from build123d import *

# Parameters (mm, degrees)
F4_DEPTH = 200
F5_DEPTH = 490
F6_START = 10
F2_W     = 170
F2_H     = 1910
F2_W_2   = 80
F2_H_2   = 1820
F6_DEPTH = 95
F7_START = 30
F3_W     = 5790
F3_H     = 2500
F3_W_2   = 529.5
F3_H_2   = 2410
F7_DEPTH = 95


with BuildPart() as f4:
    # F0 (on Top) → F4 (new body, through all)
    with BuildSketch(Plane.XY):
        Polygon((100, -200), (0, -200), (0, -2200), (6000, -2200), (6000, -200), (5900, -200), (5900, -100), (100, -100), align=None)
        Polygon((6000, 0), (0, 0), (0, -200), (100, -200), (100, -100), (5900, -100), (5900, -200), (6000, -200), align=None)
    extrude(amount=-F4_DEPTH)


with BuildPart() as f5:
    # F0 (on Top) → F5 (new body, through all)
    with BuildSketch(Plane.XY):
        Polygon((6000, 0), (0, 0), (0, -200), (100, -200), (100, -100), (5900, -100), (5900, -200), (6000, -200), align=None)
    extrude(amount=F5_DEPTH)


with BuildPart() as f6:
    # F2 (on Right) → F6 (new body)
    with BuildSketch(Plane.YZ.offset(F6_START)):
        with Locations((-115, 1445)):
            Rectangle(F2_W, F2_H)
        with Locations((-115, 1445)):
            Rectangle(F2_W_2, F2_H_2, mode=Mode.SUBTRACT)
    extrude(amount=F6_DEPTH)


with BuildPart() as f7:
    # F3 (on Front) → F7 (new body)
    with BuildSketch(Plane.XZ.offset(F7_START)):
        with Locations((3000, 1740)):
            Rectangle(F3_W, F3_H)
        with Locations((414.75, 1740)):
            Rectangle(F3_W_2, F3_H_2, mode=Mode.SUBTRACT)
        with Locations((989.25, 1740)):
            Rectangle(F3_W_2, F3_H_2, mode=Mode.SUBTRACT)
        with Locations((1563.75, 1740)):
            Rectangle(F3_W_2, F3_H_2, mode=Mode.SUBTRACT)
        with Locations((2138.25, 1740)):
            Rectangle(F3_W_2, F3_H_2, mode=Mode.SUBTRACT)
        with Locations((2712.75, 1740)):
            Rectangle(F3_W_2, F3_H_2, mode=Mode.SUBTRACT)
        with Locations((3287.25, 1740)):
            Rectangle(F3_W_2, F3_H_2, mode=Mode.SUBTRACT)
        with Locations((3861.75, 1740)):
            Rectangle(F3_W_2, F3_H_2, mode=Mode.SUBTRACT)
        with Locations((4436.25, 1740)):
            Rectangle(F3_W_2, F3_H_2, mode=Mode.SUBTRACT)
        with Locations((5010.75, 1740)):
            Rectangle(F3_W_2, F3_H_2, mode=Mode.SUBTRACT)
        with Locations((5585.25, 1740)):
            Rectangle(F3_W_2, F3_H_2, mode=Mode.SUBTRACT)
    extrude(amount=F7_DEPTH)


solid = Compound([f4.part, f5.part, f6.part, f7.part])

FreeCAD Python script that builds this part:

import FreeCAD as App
import Part
import Sketcher

doc = App.newDocument("Part")
body = doc.addObject("PartDesign::Body", "Body")

# Sketch on XY plane
sketch1 = body.newObject("Sketcher::SketchObject", "Sketch")
sketch1.AttachmentSupport = (doc.getObject("XY_Plane"), [""])
sketch1.MapMode = "FlatFace"
sketch1.addGeometry(Part.LineSegment(App.Vector(0, -2200, 0), App.Vector(6000, -2200, 0)), False)
sketch1.addGeometry(Part.LineSegment(App.Vector(6000, -2200, 0), App.Vector(6000, 0, 0)), False)
sketch1.addGeometry(Part.LineSegment(App.Vector(6000, 0, 0), App.Vector(0, 0, 0)), False)
sketch1.addGeometry(Part.LineSegment(App.Vector(0, 0, 0), App.Vector(0, -2200, 0)), False)
sketch1.addConstraint(Sketcher.Constraint("Coincident", 0, 2, 1, 1))
sketch1.addConstraint(Sketcher.Constraint("Coincident", 1, 2, 2, 1))
sketch1.addConstraint(Sketcher.Constraint("Coincident", 2, 2, 3, 1))
sketch1.addConstraint(Sketcher.Constraint("Coincident", 3, 2, 0, 1))
sketch1.addConstraint(Sketcher.Constraint("Horizontal", 0))
sketch1.addConstraint(Sketcher.Constraint("Vertical", 1))
sketch1.addConstraint(Sketcher.Constraint("Horizontal", 2))
sketch1.addConstraint(Sketcher.Constraint("Vertical", 3))
sketch1.addConstraint(Sketcher.Constraint("Coincident", 2, 2, -1, 1))
sketch1.addConstraint(Sketcher.Constraint("DistanceX", 0, 1, 0, 2, 6000.0))
sketch1.addConstraint(Sketcher.Constraint("DistanceY", 1, 1, 1, 2, 2200.0))
pad1 = body.newObject("PartDesign::Pad", "Pad")
pad1.Profile = sketch1
pad1.Length = 200
pad1.Reversed = True
body2 = doc.addObject("PartDesign::Body", "Body001")

# Sketch on XY plane
sketch2 = body2.newObject("Sketcher::SketchObject", "Sketch001")
sketch2.AttachmentSupport = (doc.getObject("XY_Plane001"), [""])
sketch2.MapMode = "FlatFace"
sketch2.addGeometry(Part.LineSegment(App.Vector(6000, 0, 0), App.Vector(0, 0, 0)), False)
sketch2.addGeometry(Part.LineSegment(App.Vector(0, 0, 0), App.Vector(0, -200, 0)), False)
sketch2.addGeometry(Part.LineSegment(App.Vector(0, -200, 0), App.Vector(100, -200, 0)), False)
sketch2.addGeometry(Part.LineSegment(App.Vector(100, -200, 0), App.Vector(100, -100, 0)), False)
sketch2.addGeometry(Part.LineSegment(App.Vector(100, -100, 0), App.Vector(5900, -100, 0)), False)
sketch2.addGeometry(Part.LineSegment(App.Vector(5900, -100, 0), App.Vector(5900, -200, 0)), False)
sketch2.addGeometry(Part.LineSegment(App.Vector(5900, -200, 0), App.Vector(6000, -200, 0)), False)
sketch2.addGeometry(Part.LineSegment(App.Vector(6000, -200, 0), App.Vector(6000, 0, 0)), False)
sketch2.addConstraint(Sketcher.Constraint("Coincident", 0, 2, 1, 1))
sketch2.addConstraint(Sketcher.Constraint("Coincident", 1, 2, 2, 1))
sketch2.addConstraint(Sketcher.Constraint("Coincident", 2, 2, 3, 1))
sketch2.addConstraint(Sketcher.Constraint("Coincident", 3, 2, 4, 1))
sketch2.addConstraint(Sketcher.Constraint("Coincident", 4, 2, 5, 1))
sketch2.addConstraint(Sketcher.Constraint("Coincident", 5, 2, 6, 1))
sketch2.addConstraint(Sketcher.Constraint("Coincident", 6, 2, 7, 1))
sketch2.addConstraint(Sketcher.Constraint("Coincident", 7, 2, 0, 1))
sketch2.addConstraint(Sketcher.Constraint("Horizontal", 0))
sketch2.addConstraint(Sketcher.Constraint("Vertical", 1))
sketch2.addConstraint(Sketcher.Constraint("Horizontal", 2))
sketch2.addConstraint(Sketcher.Constraint("Vertical", 3))
sketch2.addConstraint(Sketcher.Constraint("Horizontal", 4))
sketch2.addConstraint(Sketcher.Constraint("Vertical", 5))
sketch2.addConstraint(Sketcher.Constraint("Horizontal", 6))
sketch2.addConstraint(Sketcher.Constraint("Vertical", 7))
sketch2.addConstraint(Sketcher.Constraint("Coincident", 0, 2, -1, 1))
sketch2.addConstraint(Sketcher.Constraint("Horizontal", 2, 2, 5, 2))
sketch2.addConstraint(Sketcher.Constraint("Equal", 2, 6))
sketch2.addConstraint(Sketcher.Constraint("Equal", 6, 3))
sketch2.addConstraint(Sketcher.Constraint("DistanceX", 0, 2, 0, 1, 6000.0))
sketch2.addConstraint(Sketcher.Constraint("DistanceX", 2, 1, 2, 2, 100.0))
sketch2.addConstraint(Sketcher.Constraint("DistanceY", 1, 2, 1, 1, 200.0))
pad2 = body2.newObject("PartDesign::Pad", "Pad001")
pad2.Profile = sketch2
pad2.Length = 490
body3 = doc.addObject("PartDesign::Body", "Body002")

# Sketch on YZ plane
sketch3 = body3.newObject("Sketcher::SketchObject", "Sketch002")
sketch3.AttachmentSupport = (doc.getObject("YZ_Plane002"), [""])
sketch3.MapMode = "FlatFace"
sketch3.AttachmentOffset = App.Placement(App.Vector(0, 0, 10), App.Rotation())
sketch3.addGeometry(Part.LineSegment(App.Vector(-200, 2400, 0), App.Vector(-200, 490, 0)), False)
sketch3.addGeometry(Part.LineSegment(App.Vector(-200, 490, 0), App.Vector(-30, 490, 0)), False)
sketch3.addGeometry(Part.LineSegment(App.Vector(-30, 490, 0), App.Vector(-30, 2400, 0)), False)
sketch3.addGeometry(Part.LineSegment(App.Vector(-30, 2400, 0), App.Vector(-200, 2400, 0)), False)
sketch3.addGeometry(Part.LineSegment(App.Vector(-75, 535, 0), App.Vector(-155, 535, 0)), False)
sketch3.addGeometry(Part.LineSegment(App.Vector(-155, 535, 0), App.Vector(-155, 2355, 0)), False)
sketch3.addGeometry(Part.LineSegment(App.Vector(-155, 2355, 0), App.Vector(-75, 2355, 0)), False)
sketch3.addGeometry(Part.LineSegment(App.Vector(-75, 2355, 0), App.Vector(-75, 535, 0)), False)
sketch3.addConstraint(Sketcher.Constraint("Coincident", 0, 2, 1, 1))
sketch3.addConstraint(Sketcher.Constraint("Coincident", 1, 2, 2, 1))
sketch3.addConstraint(Sketcher.Constraint("Coincident", 2, 2, 3, 1))
sketch3.addConstraint(Sketcher.Constraint("Coincident", 3, 2, 0, 1))
sketch3.addConstraint(Sketcher.Constraint("Coincident", 4, 2, 5, 1))
sketch3.addConstraint(Sketcher.Constraint("Coincident", 5, 2, 6, 1))
sketch3.addConstraint(Sketcher.Constraint("Coincident", 6, 2, 7, 1))
sketch3.addConstraint(Sketcher.Constraint("Coincident", 7, 2, 4, 1))
sketch3.addConstraint(Sketcher.Constraint("Vertical", 0))
sketch3.addConstraint(Sketcher.Constraint("Horizontal", 1))
sketch3.addConstraint(Sketcher.Constraint("Vertical", 2))
sketch3.addConstraint(Sketcher.Constraint("Horizontal", 3))
sketch3.addConstraint(Sketcher.Constraint("Horizontal", 4))
sketch3.addConstraint(Sketcher.Constraint("Vertical", 5))
sketch3.addConstraint(Sketcher.Constraint("Horizontal", 6))
sketch3.addConstraint(Sketcher.Constraint("Vertical", 7))
sketch3.addConstraint(Sketcher.Constraint("DistanceX", 1, 1, 1, 2, 170.0))
sketch3.addConstraint(Sketcher.Constraint("DistanceX", 4, 2, 4, 1, 80.0))
sketch3.addConstraint(Sketcher.Constraint("DistanceY", 0, 2, 0, 1, 1910.0))
sketch3.addConstraint(Sketcher.Constraint("DistanceY", 5, 1, 5, 2, 1820.0))
sketch3.addConstraint(Sketcher.Constraint("DistanceX", 0, 2, -1, 1, 200.0))
sketch3.addConstraint(Sketcher.Constraint("DistanceY", -1, 1, 0, 2, 490.0))
sketch3.addConstraint(Sketcher.Constraint("DistanceX", 4, 2, -1, 1, 155.0))
sketch3.addConstraint(Sketcher.Constraint("DistanceY", -1, 1, 4, 2, 535.0))
pad3 = body3.newObject("PartDesign::Pad", "Pad002")
pad3.Profile = sketch3
pad3.Length = 95
body4 = doc.addObject("PartDesign::Body", "Body003")

# Sketch on XZ plane
sketch4 = body4.newObject("Sketcher::SketchObject", "Sketch003")
sketch4.AttachmentSupport = (doc.getObject("XZ_Plane003"), [""])
sketch4.MapMode = "FlatFace"
sketch4.AttachmentOffset = App.Placement(App.Vector(0, 0, 30), App.Rotation())
sketch4.addGeometry(Part.LineSegment(App.Vector(105, 2990, 0), App.Vector(105, 490, 0)), False)
sketch4.addGeometry(Part.LineSegment(App.Vector(105, 490, 0), App.Vector(5895, 490, 0)), False)
sketch4.addGeometry(Part.LineSegment(App.Vector(5895, 490, 0), App.Vector(5895, 2990, 0)), False)
sketch4.addGeometry(Part.LineSegment(App.Vector(5895, 2990, 0), App.Vector(105, 2990, 0)), False)
sketch4.addGeometry(Part.LineSegment(App.Vector(679.5, 535, 0), App.Vector(150, 535, 0)), False)
sketch4.addGeometry(Part.LineSegment(App.Vector(150, 535, 0), App.Vector(150, 2945, 0)), False)
sketch4.addGeometry(Part.LineSegment(App.Vector(150, 2945, 0), App.Vector(679.5, 2945, 0)), False)
sketch4.addGeometry(Part.LineSegment(App.Vector(679.5, 2945, 0), App.Vector(679.5, 535, 0)), False)
sketch4.addGeometry(Part.LineSegment(App.Vector(1254, 535, 0), App.Vector(724.5, 535, 0)), False)
sketch4.addGeometry(Part.LineSegment(App.Vector(724.5, 535, 0), App.Vector(724.5, 2945, 0)), False)
sketch4.addGeometry(Part.LineSegment(App.Vector(724.5, 2945, 0), App.Vector(1254, 2945, 0)), False)
sketch4.addGeometry(Part.LineSegment(App.Vector(1254, 2945, 0), App.Vector(1254, 535, 0)), False)
sketch4.addGeometry(Part.LineSegment(App.Vector(1828.5, 535, 0), App.Vector(1299, 535, 0)), False)
sketch4.addGeometry(Part.LineSegment(App.Vector(1299, 535, 0), App.Vector(1299, 2945, 0)), False)
sketch4.addGeometry(Part.LineSegment(App.Vector(1299, 2945, 0), App.Vector(1828.5, 2945, 0)), False)
sketch4.addGeometry(Part.LineSegment(App.Vector(1828.5, 2945, 0), App.Vector(1828.5, 535, 0)), False)
sketch4.addGeometry(Part.LineSegment(App.Vector(2403, 535, 0), App.Vector(1873.5, 535, 0)), False)
sketch4.addGeometry(Part.LineSegment(App.Vector(1873.5, 535, 0), App.Vector(1873.5, 2945, 0)), False)
sketch4.addGeometry(Part.LineSegment(App.Vector(1873.5, 2945, 0), App.Vector(2403, 2945, 0)), False)
sketch4.addGeometry(Part.LineSegment(App.Vector(2403, 2945, 0), App.Vector(2403, 535, 0)), False)
sketch4.addGeometry(Part.LineSegment(App.Vector(2977.5, 535, 0), App.Vector(2448, 535, 0)), False)
sketch4.addGeometry(Part.LineSegment(App.Vector(2448, 535, 0), App.Vector(2448, 2945, 0)), False)
sketch4.addGeometry(Part.LineSegment(App.Vector(2448, 2945, 0), App.Vector(2977.5, 2945, 0)), False)
sketch4.addGeometry(Part.LineSegment(App.Vector(2977.5, 2945, 0), App.Vector(2977.5, 535, 0)), False)
sketch4.addGeometry(Part.LineSegment(App.Vector(3552, 535, 0), App.Vector(3022.5, 535, 0)), False)
sketch4.addGeometry(Part.LineSegment(App.Vector(3022.5, 535, 0), App.Vector(3022.5, 2945, 0)), False)
sketch4.addGeometry(Part.LineSegment(App.Vector(3022.5, 2945, 0), App.Vector(3552, 2945, 0)), False)
sketch4.addGeometry(Part.LineSegment(App.Vector(3552, 2945, 0), App.Vector(3552, 535, 0)), False)
sketch4.addGeometry(Part.LineSegment(App.Vector(4126.5, 535, 0), App.Vector(3597, 535, 0)), False)
sketch4.addGeometry(Part.LineSegment(App.Vector(3597, 535, 0), App.Vector(3597, 2945, 0)), False)
sketch4.addGeometry(Part.LineSegment(App.Vector(3597, 2945, 0), App.Vector(4126.5, 2945, 0)), False)
sketch4.addGeometry(Part.LineSegment(App.Vector(4126.5, 2945, 0), App.Vector(4126.5, 535, 0)), False)
sketch4.addGeometry(Part.LineSegment(App.Vector(4701, 535, 0), App.Vector(4171.5, 535, 0)), False)
sketch4.addGeometry(Part.LineSegment(App.Vector(4171.5, 535, 0), App.Vector(4171.5, 2945, 0)), False)
sketch4.addGeometry(Part.LineSegment(App.Vector(4171.5, 2945, 0), App.Vector(4701, 2945, 0)), False)
sketch4.addGeometry(Part.LineSegment(App.Vector(4701, 2945, 0), App.Vector(4701, 535, 0)), False)
sketch4.addGeometry(Part.LineSegment(App.Vector(5275.5, 535, 0), App.Vector(4746, 535, 0)), False)
sketch4.addGeometry(Part.LineSegment(App.Vector(4746, 535, 0), App.Vector(4746, 2945, 0)), False)
sketch4.addGeometry(Part.LineSegment(App.Vector(4746, 2945, 0), App.Vector(5275.5, 2945, 0)), False)
sketch4.addGeometry(Part.LineSegment(App.Vector(5275.5, 2945, 0), App.Vector(5275.5, 535, 0)), False)
sketch4.addGeometry(Part.LineSegment(App.Vector(5850, 535, 0), App.Vector(5320.5, 535, 0)), False)
sketch4.addGeometry(Part.LineSegment(App.Vector(5320.5, 535, 0), App.Vector(5320.5, 2945, 0)), False)
sketch4.addGeometry(Part.LineSegment(App.Vector(5320.5, 2945, 0), App.Vector(5850, 2945, 0)), False)
sketch4.addGeometry(Part.LineSegment(App.Vector(5850, 2945, 0), App.Vector(5850, 535, 0)), False)
sketch4.addConstraint(Sketcher.Constraint("Coincident", 0, 2, 1, 1))
sketch4.addConstraint(Sketcher.Constraint("Coincident", 1, 2, 2, 1))
sketch4.addConstraint(Sketcher.Constraint("Coincident", 2, 2, 3, 1))
sketch4.addConstraint(Sketcher.Constraint("Coincident", 3, 2, 0, 1))
sketch4.addConstraint(Sketcher.Constraint("Coincident", 4, 2, 5, 1))
sketch4.addConstraint(Sketcher.Constraint("Coincident", 5, 2, 6, 1))
sketch4.addConstraint(Sketcher.Constraint("Coincident", 6, 2, 7, 1))
sketch4.addConstraint(Sketcher.Constraint("Coincident", 7, 2, 4, 1))
sketch4.addConstraint(Sketcher.Constraint("Coincident", 8, 2, 9, 1))
sketch4.addConstraint(Sketcher.Constraint("Coincident", 9, 2, 10, 1))
sketch4.addConstraint(Sketcher.Constraint("Coincident", 10, 2, 11, 1))
sketch4.addConstraint(Sketcher.Constraint("Coincident", 11, 2, 8, 1))
sketch4.addConstraint(Sketcher.Constraint("Coincident", 12, 2, 13, 1))
sketch4.addConstraint(Sketcher.Constraint("Coincident", 13, 2, 14, 1))
sketch4.addConstraint(Sketcher.Constraint("Coincident", 14, 2, 15, 1))
sketch4.addConstraint(Sketcher.Constraint("Coincident", 15, 2, 12, 1))
sketch4.addConstraint(Sketcher.Constraint("Coincident", 16, 2, 17, 1))
sketch4.addConstraint(Sketcher.Constraint("Coincident", 17, 2, 18, 1))
sketch4.addConstraint(Sketcher.Constraint("Coincident", 18, 2, 19, 1))
sketch4.addConstraint(Sketcher.Constraint("Coincident", 19, 2, 16, 1))
sketch4.addConstraint(Sketcher.Constraint("Coincident", 20, 2, 21, 1))
sketch4.addConstraint(Sketcher.Constraint("Coincident", 21, 2, 22, 1))
sketch4.addConstraint(Sketcher.Constraint("Coincident", 22, 2, 23, 1))
sketch4.addConstraint(Sketcher.Constraint("Coincident", 23, 2, 20, 1))
sketch4.addConstraint(Sketcher.Constraint("Coincident", 24, 2, 25, 1))
sketch4.addConstraint(Sketcher.Constraint("Coincident", 25, 2, 26, 1))
sketch4.addConstraint(Sketcher.Constraint("Coincident", 26, 2, 27, 1))
sketch4.addConstraint(Sketcher.Constraint("Coincident", 27, 2, 24, 1))
sketch4.addConstraint(Sketcher.Constraint("Coincident", 28, 2, 29, 1))
sketch4.addConstraint(Sketcher.Constraint("Coincident", 29, 2, 30, 1))
sketch4.addConstraint(Sketcher.Constraint("Coincident", 30, 2, 31, 1))
sketch4.addConstraint(Sketcher.Constraint("Coincident", 31, 2, 28, 1))
sketch4.addConstraint(Sketcher.Constraint("Coincident", 32, 2, 33, 1))
sketch4.addConstraint(Sketcher.Constraint("Coincident", 33, 2, 34, 1))
sketch4.addConstraint(Sketcher.Constraint("Coincident", 34, 2, 35, 1))
sketch4.addConstraint(Sketcher.Constraint("Coincident", 35, 2, 32, 1))
sketch4.addConstraint(Sketcher.Constraint("Coincident", 36, 2, 37, 1))
sketch4.addConstraint(Sketcher.Constraint("Coincident", 37, 2, 38, 1))
sketch4.addConstraint(Sketcher.Constraint("Coincident", 38, 2, 39, 1))
sketch4.addConstraint(Sketcher.Constraint("Coincident", 39, 2, 36, 1))
sketch4.addConstraint(Sketcher.Constraint("Coincident", 40, 2, 41, 1))
sketch4.addConstraint(Sketcher.Constraint("Coincident", 41, 2, 42, 1))
sketch4.addConstraint(Sketcher.Constraint("Coincident", 42, 2, 43, 1))
sketch4.addConstraint(Sketcher.Constraint("Coincident", 43, 2, 40, 1))
sketch4.addConstraint(Sketcher.Constraint("Vertical", 0))
sketch4.addConstraint(Sketcher.Constraint("Horizontal", 1))
sketch4.addConstraint(Sketcher.Constraint("Vertical", 2))
sketch4.addConstraint(Sketcher.Constraint("Horizontal", 3))
sketch4.addConstraint(Sketcher.Constraint("Horizontal", 4))
sketch4.addConstraint(Sketcher.Constraint("Vertical", 5))
sketch4.addConstraint(Sketcher.Constraint("Horizontal", 6))
sketch4.addConstraint(Sketcher.Constraint("Vertical", 7))
sketch4.addConstraint(Sketcher.Constraint("Horizontal", 8))
sketch4.addConstraint(Sketcher.Constraint("Vertical", 9))
sketch4.addConstraint(Sketcher.Constraint("Horizontal", 10))
sketch4.addConstraint(Sketcher.Constraint("Vertical", 11))
sketch4.addConstraint(Sketcher.Constraint("Horizontal", 12))
sketch4.addConstraint(Sketcher.Constraint("Vertical", 13))
sketch4.addConstraint(Sketcher.Constraint("Horizontal", 14))
sketch4.addConstraint(Sketcher.Constraint("Vertical", 15))
sketch4.addConstraint(Sketcher.Constraint("Horizontal", 16))
sketch4.addConstraint(Sketcher.Constraint("Vertical", 17))
sketch4.addConstraint(Sketcher.Constraint("Horizontal", 18))
sketch4.addConstraint(Sketcher.Constraint("Vertical", 19))
sketch4.addConstraint(Sketcher.Constraint("Horizontal", 20))
sketch4.addConstraint(Sketcher.Constraint("Vertical", 21))
sketch4.addConstraint(Sketcher.Constraint("Horizontal", 22))
sketch4.addConstraint(Sketcher.Constraint("Vertical", 23))
sketch4.addConstraint(Sketcher.Constraint("Horizontal", 24))
sketch4.addConstraint(Sketcher.Constraint("Vertical", 25))
sketch4.addConstraint(Sketcher.Constraint("Horizontal", 26))
sketch4.addConstraint(Sketcher.Constraint("Vertical", 27))
sketch4.addConstraint(Sketcher.Constraint("Horizontal", 28))
sketch4.addConstraint(Sketcher.Constraint("Vertical", 29))
sketch4.addConstraint(Sketcher.Constraint("Horizontal", 30))
sketch4.addConstraint(Sketcher.Constraint("Vertical", 31))
sketch4.addConstraint(Sketcher.Constraint("Horizontal", 32))
sketch4.addConstraint(Sketcher.Constraint("Vertical", 33))
sketch4.addConstraint(Sketcher.Constraint("Horizontal", 34))
sketch4.addConstraint(Sketcher.Constraint("Vertical", 35))
sketch4.addConstraint(Sketcher.Constraint("Horizontal", 36))
sketch4.addConstraint(Sketcher.Constraint("Vertical", 37))
sketch4.addConstraint(Sketcher.Constraint("Horizontal", 38))
sketch4.addConstraint(Sketcher.Constraint("Vertical", 39))
sketch4.addConstraint(Sketcher.Constraint("Horizontal", 40))
sketch4.addConstraint(Sketcher.Constraint("Vertical", 41))
sketch4.addConstraint(Sketcher.Constraint("Horizontal", 42))
sketch4.addConstraint(Sketcher.Constraint("Vertical", 43))
sketch4.addConstraint(Sketcher.Constraint("Horizontal", 7, 2, 8, 2))
sketch4.addConstraint(Sketcher.Constraint("Horizontal", 6, 2, 9, 2))
sketch4.addConstraint(Sketcher.Constraint("Horizontal", 11, 2, 12, 2))
sketch4.addConstraint(Sketcher.Constraint("Horizontal", 10, 2, 13, 2))
sketch4.addConstraint(Sketcher.Constraint("Horizontal", 15, 2, 16, 2))
sketch4.addConstraint(Sketcher.Constraint("Horizontal", 14, 2, 17, 2))
sketch4.addConstraint(Sketcher.Constraint("Horizontal", 19, 2, 20, 2))
sketch4.addConstraint(Sketcher.Constraint("Horizontal", 18, 2, 21, 2))
sketch4.addConstraint(Sketcher.Constraint("Horizontal", 23, 2, 24, 2))
sketch4.addConstraint(Sketcher.Constraint("Horizontal", 22, 2, 25, 2))
sketch4.addConstraint(Sketcher.Constraint("Horizontal", 27, 2, 28, 2))
sketch4.addConstraint(Sketcher.Constraint("Horizontal", 26, 2, 29, 2))
sketch4.addConstraint(Sketcher.Constraint("Horizontal", 31, 2, 32, 2))
sketch4.addConstraint(Sketcher.Constraint("Horizontal", 30, 2, 33, 2))
sketch4.addConstraint(Sketcher.Constraint("Horizontal", 35, 2, 36, 2))
sketch4.addConstraint(Sketcher.Constraint("Horizontal", 34, 2, 37, 2))
sketch4.addConstraint(Sketcher.Constraint("Horizontal", 39, 2, 40, 2))
sketch4.addConstraint(Sketcher.Constraint("Horizontal", 38, 2, 41, 2))
sketch4.addConstraint(Sketcher.Constraint("Equal", 6, 8))
sketch4.addConstraint(Sketcher.Constraint("Equal", 10, 12))
sketch4.addConstraint(Sketcher.Constraint("Equal", 14, 16))
sketch4.addConstraint(Sketcher.Constraint("Equal", 18, 20))
sketch4.addConstraint(Sketcher.Constraint("Equal", 22, 24))
sketch4.addConstraint(Sketcher.Constraint("Equal", 26, 28))
sketch4.addConstraint(Sketcher.Constraint("Equal", 30, 32))
sketch4.addConstraint(Sketcher.Constraint("Equal", 34, 36))
sketch4.addConstraint(Sketcher.Constraint("Equal", 38, 40))
sketch4.addConstraint(Sketcher.Constraint("DistanceX", 1, 1, 1, 2, 5790.0))
sketch4.addConstraint(Sketcher.Constraint("DistanceY", 0, 2, 0, 1, 2500.0))
sketch4.addConstraint(Sketcher.Constraint("DistanceY", 5, 1, 5, 2, 2410.0))
sketch4.addConstraint(Sketcher.Constraint("DistanceX", 4, 2, 4, 1, 529.5))
sketch4.addConstraint(Sketcher.Constraint("DistanceX", -1, 1, 0, 2, 105.0))
sketch4.addConstraint(Sketcher.Constraint("DistanceY", -1, 1, 0, 2, 490.0))
sketch4.addConstraint(Sketcher.Constraint("DistanceX", -1, 1, 4, 2, 150.0))
sketch4.addConstraint(Sketcher.Constraint("DistanceY", -1, 1, 4, 2, 535.0))
sketch4.addConstraint(Sketcher.Constraint("DistanceX", -1, 1, 10, 2, 1254.0))
sketch4.addConstraint(Sketcher.Constraint("DistanceX", -1, 1, 12, 2, 1299.0))
sketch4.addConstraint(Sketcher.Constraint("DistanceX", -1, 1, 18, 2, 2403.0))
sketch4.addConstraint(Sketcher.Constraint("DistanceX", -1, 1, 20, 2, 2448.0))
sketch4.addConstraint(Sketcher.Constraint("DistanceX", -1, 1, 26, 2, 3552.0))
sketch4.addConstraint(Sketcher.Constraint("DistanceX", -1, 1, 28, 2, 3597.0))
sketch4.addConstraint(Sketcher.Constraint("DistanceX", -1, 1, 34, 2, 4701.0))
sketch4.addConstraint(Sketcher.Constraint("DistanceX", -1, 1, 36, 2, 4746.0))
sketch4.addConstraint(Sketcher.Constraint("DistanceX", -1, 1, 42, 2, 5850.0))
pad4 = body4.newObject("PartDesign::Pad", "Pad003")
pad4.Profile = sketch4
pad4.Length = 95

doc.recompute()
